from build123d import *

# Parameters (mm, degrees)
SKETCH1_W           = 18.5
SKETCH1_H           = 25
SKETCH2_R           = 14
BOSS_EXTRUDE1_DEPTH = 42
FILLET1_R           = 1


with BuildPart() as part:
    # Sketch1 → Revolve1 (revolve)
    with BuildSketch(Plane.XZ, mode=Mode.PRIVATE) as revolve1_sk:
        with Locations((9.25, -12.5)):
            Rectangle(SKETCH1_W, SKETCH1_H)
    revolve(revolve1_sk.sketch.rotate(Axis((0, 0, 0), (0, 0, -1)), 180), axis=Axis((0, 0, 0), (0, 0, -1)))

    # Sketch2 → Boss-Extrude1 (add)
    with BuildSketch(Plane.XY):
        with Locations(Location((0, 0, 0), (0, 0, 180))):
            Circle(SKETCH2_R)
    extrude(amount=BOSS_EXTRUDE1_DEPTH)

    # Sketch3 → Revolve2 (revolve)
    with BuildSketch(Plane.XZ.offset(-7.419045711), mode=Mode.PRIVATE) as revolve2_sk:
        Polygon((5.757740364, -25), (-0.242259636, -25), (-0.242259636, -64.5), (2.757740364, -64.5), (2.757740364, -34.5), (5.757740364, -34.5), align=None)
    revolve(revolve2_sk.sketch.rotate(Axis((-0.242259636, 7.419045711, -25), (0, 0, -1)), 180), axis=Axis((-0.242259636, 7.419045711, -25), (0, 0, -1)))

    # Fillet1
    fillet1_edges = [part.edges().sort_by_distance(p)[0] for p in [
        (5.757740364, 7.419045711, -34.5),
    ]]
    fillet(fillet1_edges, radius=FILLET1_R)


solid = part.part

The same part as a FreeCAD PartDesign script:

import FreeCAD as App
import Part
import Sketcher
from FreeCAD import Vector


def edges_at(feature, points):
    """Names of the edges that pass closest to the given points."""
    edges = feature.Shape.Edges
    near = lambda p: min(range(len(edges)), key=lambda i: edges[i].distToShape(Part.Vertex(*p))[0])
    return sorted({f"Edge{near(p) + 1}" for p in points})

doc = App.newDocument("Part")
params = doc.addObject("Spreadsheet::Sheet", "Params")
for row, (alias, value) in enumerate([
    ("sketch1_height", "25 mm"),
    ("sketch1_width", "18.5 mm"),
    ("revolution_angle", "360 deg"),
    ("sketch2_diameter", "28 mm"),
    ("pad1_length", "42 mm"),
    ("sketch3_width", "6 mm"),
    ("sketch3_height", "30 mm"),
    ("sketch3_height2", "39.5 mm"),
    ("revolution2_angle", "360 deg"),
    ("fillet_radius", "1 mm"),
], start=1):
    params.set(f"A{row}", alias)
    params.set(f"B{row}", "=" + value)
    params.setAlias(f"B{row}", alias)

body = doc.addObject("PartDesign::Body", "Body")

sketch1 = body.newObject("Sketcher::SketchObject", "Sketch")
sketch1.AttachmentSupport = (doc.getObject("XZ_Plane"), [""])
sketch1.MapMode = "FlatFace"
sketch1.addGeometry(Part.LineSegment(Vector(0, 0, 0), Vector(0, -25, 0)), False)
sketch1.addGeometry(Part.LineSegment(Vector(0, -25, 0), Vector(18, -25, 0)), False)
sketch1.addGeometry(Part.LineSegment(Vector(18, -25, 0), Vector(18, 0, 0)), False)
sketch1.addGeometry(Part.LineSegment(Vector(18, 0, 0), Vector(0, 0, 0)), False)
sketch1.addConstraint(Sketcher.Constraint("Coincident", 0, 2, 1, 1))
sketch1.addConstraint(Sketcher.Constraint("Coincident", 1, 2, 2, 1))
sketch1.addConstraint(Sketcher.Constraint("Coincident", 2, 2, 3, 1))
sketch1.addConstraint(Sketcher.Constraint("Coincident", 3, 2, 0, 1))
sketch1.addConstraint(Sketcher.Constraint("Vertical", 0))
sketch1.addConstraint(Sketcher.Constraint("Horizontal", 1))
sketch1.addConstraint(Sketcher.Constraint("Vertical", 2))
sketch1.addConstraint(Sketcher.Constraint("Horizontal", 3))
sketch1.addConstraint(Sketcher.Constraint("Coincident", 3, 2, -1, 1))
sketch1.addConstraint(Sketcher.Constraint("DistanceY", 0, 2, 0, 1, 25.0))
sketch1.addConstraint(Sketcher.Constraint("DistanceX", 1, 1, 1, 2, 18.5))
sketch1.setExpression("Constraints[9]", "Params.sketch1_height")
sketch1.setExpression("Constraints[10]", "Params.sketch1_width")
revolution = body.newObject("PartDesign::Revolution", "Revolution")
revolution.Profile = sketch1
revolution.ReferenceAxis = (sketch1, ["V_Axis"])
revolution.setExpression("Angle", "Params.revolution_angle")

sketch2 = body.newObject("Sketcher::SketchObject", "Sketch001")
sketch2.AttachmentSupport = (doc.getObject("XY_Plane"), [""])
sketch2.MapMode = "FlatFace"
sketch2.addGeometry(Part.Circle(Vector(0, 0, 0), Vector(0, 0, 1), 14), False)
sketch2.addConstraint(Sketcher.Constraint("Coincident", 0, 3, -1, 1))
sketch2.addConstraint(Sketcher.Constraint("Diameter", 0, 28.0))
sketch2.setExpression("Constraints[1]", "Params.sketch2_diameter")
pad1 = body.newObject("PartDesign::Pad", "Pad")
pad1.Profile = sketch2
pad1.setExpression("Length", "Params.pad1_length")

sketch3 = body.newObject("Sketcher::SketchObject", "Sketch002")
sketch3.AttachmentSupport = (doc.getObject("XZ_Plane"), [""])
sketch3.MapMode = "FlatFace"
sketch3.AttachmentOffset = App.Placement(Vector(0, 0, -7.419046), App.Rotation())
sketch3.addGeometry(Part.LineSegment(Vector(5.8, -25, 0), Vector(-0.2, -25, 0)), False)
sketch3.addGeometry(Part.LineSegment(Vector(-0.2, -25, 0), Vector(-0.2, -64.5, 0)), False)
sketch3.addGeometry(Part.LineSegment(Vector(-0.2, -64.5, 0), Vector(2.8, -64.5, 0)), False)
sketch3.addGeometry(Part.LineSegment(Vector(2.8, -64.5, 0), Vector(2.8, -34.5, 0)), False)
sketch3.addGeometry(Part.LineSegment(Vector(2.8, -34.5, 0), Vector(5.8, -34.5, 0)), False)
sketch3.addGeometry(Part.LineSegment(Vector(5.8, -34.5, 0), Vector(5.8, -25, 0)), False)
sketch3.addGeometry(Part.LineSegment(Vector(-0.2, -25, 0), Vector(-0.2, -64.5, 0)), True)
sketch3.addConstraint(Sketcher.Constraint("Coincident", 0, 2, 1, 1))
sketch3.addConstraint(Sketcher.Constraint("Coincident", 1, 2, 2, 1))
sketch3.addConstraint(Sketcher.Constraint("Coincident", 2, 2, 3, 1))
sketch3.addConstraint(Sketcher.Constraint("Coincident", 3, 2, 4, 1))
sketch3.addConstraint(Sketcher.Constraint("Coincident", 4, 2, 5, 1))
sketch3.addConstraint(Sketcher.Constraint("Coincident", 5, 2, 0, 1))
sketch3.addConstraint(Sketcher.Constraint("Horizontal", 0))
sketch3.addConstraint(Sketcher.Constraint("Vertical", 1))
sketch3.addConstraint(Sketcher.Constraint("Horizontal", 2))
sketch3.addConstraint(Sketcher.Constraint("Vertical", 3))
sketch3.addConstraint(Sketcher.Constraint("Horizontal", 4))
sketch3.addConstraint(Sketcher.Constraint("Vertical", 5))
sketch3.addConstraint(Sketcher.Constraint("Vertical", 6))
sketch3.addConstraint(Sketcher.Constraint("Coincident", 6, 1, 0, 2))
sketch3.addConstraint(Sketcher.Constraint("Horizontal", 2, 2, 6, 2))
sketch3.addConstraint(Sketcher.Constraint("Equal", 2, 4))
sketch3.addConstraint(Sketcher.Constraint("DistanceX", 0, 2, 0, 1, 6.0))
sketch3.addConstraint(Sketcher.Constraint("DistanceY", 3, 1, 3, 2, 30.0))
sketch3.addConstraint(Sketcher.Constraint("DistanceY", 1, 2, 1, 1, 39.5))
sketch3.addConstraint(Sketcher.Constraint("DistanceY", 0, 2, -1, 1, 25.0))
sketch3.addConstraint(Sketcher.Constraint("DistanceX", 0, 2, -1, 1, 0.24226))
sketch3.setExpression("Constraints[16]", "Params.sketch3_width")
sketch3.setExpression("Constraints[17]", "Params.sketch3_height")
sketch3.setExpression("Constraints[18]", "Params.sketch3_height2")
revolution2 = body.newObject("PartDesign::Revolution", "Revolution001")
revolution2.Profile = sketch3
revolution2.ReferenceAxis = (sketch3, ["Axis0"])
revolution2.setExpression("Angle", "Params.revolution2_angle")
doc.recompute()

fillet = body.newObject("PartDesign::Fillet", "Fillet")
fillet.Base = (revolution2, edges_at(revolution2, [(5.758, 7.419, -34.5)]))
fillet.setExpression("Radius", "Params.fillet_radius")

doc.recompute()
